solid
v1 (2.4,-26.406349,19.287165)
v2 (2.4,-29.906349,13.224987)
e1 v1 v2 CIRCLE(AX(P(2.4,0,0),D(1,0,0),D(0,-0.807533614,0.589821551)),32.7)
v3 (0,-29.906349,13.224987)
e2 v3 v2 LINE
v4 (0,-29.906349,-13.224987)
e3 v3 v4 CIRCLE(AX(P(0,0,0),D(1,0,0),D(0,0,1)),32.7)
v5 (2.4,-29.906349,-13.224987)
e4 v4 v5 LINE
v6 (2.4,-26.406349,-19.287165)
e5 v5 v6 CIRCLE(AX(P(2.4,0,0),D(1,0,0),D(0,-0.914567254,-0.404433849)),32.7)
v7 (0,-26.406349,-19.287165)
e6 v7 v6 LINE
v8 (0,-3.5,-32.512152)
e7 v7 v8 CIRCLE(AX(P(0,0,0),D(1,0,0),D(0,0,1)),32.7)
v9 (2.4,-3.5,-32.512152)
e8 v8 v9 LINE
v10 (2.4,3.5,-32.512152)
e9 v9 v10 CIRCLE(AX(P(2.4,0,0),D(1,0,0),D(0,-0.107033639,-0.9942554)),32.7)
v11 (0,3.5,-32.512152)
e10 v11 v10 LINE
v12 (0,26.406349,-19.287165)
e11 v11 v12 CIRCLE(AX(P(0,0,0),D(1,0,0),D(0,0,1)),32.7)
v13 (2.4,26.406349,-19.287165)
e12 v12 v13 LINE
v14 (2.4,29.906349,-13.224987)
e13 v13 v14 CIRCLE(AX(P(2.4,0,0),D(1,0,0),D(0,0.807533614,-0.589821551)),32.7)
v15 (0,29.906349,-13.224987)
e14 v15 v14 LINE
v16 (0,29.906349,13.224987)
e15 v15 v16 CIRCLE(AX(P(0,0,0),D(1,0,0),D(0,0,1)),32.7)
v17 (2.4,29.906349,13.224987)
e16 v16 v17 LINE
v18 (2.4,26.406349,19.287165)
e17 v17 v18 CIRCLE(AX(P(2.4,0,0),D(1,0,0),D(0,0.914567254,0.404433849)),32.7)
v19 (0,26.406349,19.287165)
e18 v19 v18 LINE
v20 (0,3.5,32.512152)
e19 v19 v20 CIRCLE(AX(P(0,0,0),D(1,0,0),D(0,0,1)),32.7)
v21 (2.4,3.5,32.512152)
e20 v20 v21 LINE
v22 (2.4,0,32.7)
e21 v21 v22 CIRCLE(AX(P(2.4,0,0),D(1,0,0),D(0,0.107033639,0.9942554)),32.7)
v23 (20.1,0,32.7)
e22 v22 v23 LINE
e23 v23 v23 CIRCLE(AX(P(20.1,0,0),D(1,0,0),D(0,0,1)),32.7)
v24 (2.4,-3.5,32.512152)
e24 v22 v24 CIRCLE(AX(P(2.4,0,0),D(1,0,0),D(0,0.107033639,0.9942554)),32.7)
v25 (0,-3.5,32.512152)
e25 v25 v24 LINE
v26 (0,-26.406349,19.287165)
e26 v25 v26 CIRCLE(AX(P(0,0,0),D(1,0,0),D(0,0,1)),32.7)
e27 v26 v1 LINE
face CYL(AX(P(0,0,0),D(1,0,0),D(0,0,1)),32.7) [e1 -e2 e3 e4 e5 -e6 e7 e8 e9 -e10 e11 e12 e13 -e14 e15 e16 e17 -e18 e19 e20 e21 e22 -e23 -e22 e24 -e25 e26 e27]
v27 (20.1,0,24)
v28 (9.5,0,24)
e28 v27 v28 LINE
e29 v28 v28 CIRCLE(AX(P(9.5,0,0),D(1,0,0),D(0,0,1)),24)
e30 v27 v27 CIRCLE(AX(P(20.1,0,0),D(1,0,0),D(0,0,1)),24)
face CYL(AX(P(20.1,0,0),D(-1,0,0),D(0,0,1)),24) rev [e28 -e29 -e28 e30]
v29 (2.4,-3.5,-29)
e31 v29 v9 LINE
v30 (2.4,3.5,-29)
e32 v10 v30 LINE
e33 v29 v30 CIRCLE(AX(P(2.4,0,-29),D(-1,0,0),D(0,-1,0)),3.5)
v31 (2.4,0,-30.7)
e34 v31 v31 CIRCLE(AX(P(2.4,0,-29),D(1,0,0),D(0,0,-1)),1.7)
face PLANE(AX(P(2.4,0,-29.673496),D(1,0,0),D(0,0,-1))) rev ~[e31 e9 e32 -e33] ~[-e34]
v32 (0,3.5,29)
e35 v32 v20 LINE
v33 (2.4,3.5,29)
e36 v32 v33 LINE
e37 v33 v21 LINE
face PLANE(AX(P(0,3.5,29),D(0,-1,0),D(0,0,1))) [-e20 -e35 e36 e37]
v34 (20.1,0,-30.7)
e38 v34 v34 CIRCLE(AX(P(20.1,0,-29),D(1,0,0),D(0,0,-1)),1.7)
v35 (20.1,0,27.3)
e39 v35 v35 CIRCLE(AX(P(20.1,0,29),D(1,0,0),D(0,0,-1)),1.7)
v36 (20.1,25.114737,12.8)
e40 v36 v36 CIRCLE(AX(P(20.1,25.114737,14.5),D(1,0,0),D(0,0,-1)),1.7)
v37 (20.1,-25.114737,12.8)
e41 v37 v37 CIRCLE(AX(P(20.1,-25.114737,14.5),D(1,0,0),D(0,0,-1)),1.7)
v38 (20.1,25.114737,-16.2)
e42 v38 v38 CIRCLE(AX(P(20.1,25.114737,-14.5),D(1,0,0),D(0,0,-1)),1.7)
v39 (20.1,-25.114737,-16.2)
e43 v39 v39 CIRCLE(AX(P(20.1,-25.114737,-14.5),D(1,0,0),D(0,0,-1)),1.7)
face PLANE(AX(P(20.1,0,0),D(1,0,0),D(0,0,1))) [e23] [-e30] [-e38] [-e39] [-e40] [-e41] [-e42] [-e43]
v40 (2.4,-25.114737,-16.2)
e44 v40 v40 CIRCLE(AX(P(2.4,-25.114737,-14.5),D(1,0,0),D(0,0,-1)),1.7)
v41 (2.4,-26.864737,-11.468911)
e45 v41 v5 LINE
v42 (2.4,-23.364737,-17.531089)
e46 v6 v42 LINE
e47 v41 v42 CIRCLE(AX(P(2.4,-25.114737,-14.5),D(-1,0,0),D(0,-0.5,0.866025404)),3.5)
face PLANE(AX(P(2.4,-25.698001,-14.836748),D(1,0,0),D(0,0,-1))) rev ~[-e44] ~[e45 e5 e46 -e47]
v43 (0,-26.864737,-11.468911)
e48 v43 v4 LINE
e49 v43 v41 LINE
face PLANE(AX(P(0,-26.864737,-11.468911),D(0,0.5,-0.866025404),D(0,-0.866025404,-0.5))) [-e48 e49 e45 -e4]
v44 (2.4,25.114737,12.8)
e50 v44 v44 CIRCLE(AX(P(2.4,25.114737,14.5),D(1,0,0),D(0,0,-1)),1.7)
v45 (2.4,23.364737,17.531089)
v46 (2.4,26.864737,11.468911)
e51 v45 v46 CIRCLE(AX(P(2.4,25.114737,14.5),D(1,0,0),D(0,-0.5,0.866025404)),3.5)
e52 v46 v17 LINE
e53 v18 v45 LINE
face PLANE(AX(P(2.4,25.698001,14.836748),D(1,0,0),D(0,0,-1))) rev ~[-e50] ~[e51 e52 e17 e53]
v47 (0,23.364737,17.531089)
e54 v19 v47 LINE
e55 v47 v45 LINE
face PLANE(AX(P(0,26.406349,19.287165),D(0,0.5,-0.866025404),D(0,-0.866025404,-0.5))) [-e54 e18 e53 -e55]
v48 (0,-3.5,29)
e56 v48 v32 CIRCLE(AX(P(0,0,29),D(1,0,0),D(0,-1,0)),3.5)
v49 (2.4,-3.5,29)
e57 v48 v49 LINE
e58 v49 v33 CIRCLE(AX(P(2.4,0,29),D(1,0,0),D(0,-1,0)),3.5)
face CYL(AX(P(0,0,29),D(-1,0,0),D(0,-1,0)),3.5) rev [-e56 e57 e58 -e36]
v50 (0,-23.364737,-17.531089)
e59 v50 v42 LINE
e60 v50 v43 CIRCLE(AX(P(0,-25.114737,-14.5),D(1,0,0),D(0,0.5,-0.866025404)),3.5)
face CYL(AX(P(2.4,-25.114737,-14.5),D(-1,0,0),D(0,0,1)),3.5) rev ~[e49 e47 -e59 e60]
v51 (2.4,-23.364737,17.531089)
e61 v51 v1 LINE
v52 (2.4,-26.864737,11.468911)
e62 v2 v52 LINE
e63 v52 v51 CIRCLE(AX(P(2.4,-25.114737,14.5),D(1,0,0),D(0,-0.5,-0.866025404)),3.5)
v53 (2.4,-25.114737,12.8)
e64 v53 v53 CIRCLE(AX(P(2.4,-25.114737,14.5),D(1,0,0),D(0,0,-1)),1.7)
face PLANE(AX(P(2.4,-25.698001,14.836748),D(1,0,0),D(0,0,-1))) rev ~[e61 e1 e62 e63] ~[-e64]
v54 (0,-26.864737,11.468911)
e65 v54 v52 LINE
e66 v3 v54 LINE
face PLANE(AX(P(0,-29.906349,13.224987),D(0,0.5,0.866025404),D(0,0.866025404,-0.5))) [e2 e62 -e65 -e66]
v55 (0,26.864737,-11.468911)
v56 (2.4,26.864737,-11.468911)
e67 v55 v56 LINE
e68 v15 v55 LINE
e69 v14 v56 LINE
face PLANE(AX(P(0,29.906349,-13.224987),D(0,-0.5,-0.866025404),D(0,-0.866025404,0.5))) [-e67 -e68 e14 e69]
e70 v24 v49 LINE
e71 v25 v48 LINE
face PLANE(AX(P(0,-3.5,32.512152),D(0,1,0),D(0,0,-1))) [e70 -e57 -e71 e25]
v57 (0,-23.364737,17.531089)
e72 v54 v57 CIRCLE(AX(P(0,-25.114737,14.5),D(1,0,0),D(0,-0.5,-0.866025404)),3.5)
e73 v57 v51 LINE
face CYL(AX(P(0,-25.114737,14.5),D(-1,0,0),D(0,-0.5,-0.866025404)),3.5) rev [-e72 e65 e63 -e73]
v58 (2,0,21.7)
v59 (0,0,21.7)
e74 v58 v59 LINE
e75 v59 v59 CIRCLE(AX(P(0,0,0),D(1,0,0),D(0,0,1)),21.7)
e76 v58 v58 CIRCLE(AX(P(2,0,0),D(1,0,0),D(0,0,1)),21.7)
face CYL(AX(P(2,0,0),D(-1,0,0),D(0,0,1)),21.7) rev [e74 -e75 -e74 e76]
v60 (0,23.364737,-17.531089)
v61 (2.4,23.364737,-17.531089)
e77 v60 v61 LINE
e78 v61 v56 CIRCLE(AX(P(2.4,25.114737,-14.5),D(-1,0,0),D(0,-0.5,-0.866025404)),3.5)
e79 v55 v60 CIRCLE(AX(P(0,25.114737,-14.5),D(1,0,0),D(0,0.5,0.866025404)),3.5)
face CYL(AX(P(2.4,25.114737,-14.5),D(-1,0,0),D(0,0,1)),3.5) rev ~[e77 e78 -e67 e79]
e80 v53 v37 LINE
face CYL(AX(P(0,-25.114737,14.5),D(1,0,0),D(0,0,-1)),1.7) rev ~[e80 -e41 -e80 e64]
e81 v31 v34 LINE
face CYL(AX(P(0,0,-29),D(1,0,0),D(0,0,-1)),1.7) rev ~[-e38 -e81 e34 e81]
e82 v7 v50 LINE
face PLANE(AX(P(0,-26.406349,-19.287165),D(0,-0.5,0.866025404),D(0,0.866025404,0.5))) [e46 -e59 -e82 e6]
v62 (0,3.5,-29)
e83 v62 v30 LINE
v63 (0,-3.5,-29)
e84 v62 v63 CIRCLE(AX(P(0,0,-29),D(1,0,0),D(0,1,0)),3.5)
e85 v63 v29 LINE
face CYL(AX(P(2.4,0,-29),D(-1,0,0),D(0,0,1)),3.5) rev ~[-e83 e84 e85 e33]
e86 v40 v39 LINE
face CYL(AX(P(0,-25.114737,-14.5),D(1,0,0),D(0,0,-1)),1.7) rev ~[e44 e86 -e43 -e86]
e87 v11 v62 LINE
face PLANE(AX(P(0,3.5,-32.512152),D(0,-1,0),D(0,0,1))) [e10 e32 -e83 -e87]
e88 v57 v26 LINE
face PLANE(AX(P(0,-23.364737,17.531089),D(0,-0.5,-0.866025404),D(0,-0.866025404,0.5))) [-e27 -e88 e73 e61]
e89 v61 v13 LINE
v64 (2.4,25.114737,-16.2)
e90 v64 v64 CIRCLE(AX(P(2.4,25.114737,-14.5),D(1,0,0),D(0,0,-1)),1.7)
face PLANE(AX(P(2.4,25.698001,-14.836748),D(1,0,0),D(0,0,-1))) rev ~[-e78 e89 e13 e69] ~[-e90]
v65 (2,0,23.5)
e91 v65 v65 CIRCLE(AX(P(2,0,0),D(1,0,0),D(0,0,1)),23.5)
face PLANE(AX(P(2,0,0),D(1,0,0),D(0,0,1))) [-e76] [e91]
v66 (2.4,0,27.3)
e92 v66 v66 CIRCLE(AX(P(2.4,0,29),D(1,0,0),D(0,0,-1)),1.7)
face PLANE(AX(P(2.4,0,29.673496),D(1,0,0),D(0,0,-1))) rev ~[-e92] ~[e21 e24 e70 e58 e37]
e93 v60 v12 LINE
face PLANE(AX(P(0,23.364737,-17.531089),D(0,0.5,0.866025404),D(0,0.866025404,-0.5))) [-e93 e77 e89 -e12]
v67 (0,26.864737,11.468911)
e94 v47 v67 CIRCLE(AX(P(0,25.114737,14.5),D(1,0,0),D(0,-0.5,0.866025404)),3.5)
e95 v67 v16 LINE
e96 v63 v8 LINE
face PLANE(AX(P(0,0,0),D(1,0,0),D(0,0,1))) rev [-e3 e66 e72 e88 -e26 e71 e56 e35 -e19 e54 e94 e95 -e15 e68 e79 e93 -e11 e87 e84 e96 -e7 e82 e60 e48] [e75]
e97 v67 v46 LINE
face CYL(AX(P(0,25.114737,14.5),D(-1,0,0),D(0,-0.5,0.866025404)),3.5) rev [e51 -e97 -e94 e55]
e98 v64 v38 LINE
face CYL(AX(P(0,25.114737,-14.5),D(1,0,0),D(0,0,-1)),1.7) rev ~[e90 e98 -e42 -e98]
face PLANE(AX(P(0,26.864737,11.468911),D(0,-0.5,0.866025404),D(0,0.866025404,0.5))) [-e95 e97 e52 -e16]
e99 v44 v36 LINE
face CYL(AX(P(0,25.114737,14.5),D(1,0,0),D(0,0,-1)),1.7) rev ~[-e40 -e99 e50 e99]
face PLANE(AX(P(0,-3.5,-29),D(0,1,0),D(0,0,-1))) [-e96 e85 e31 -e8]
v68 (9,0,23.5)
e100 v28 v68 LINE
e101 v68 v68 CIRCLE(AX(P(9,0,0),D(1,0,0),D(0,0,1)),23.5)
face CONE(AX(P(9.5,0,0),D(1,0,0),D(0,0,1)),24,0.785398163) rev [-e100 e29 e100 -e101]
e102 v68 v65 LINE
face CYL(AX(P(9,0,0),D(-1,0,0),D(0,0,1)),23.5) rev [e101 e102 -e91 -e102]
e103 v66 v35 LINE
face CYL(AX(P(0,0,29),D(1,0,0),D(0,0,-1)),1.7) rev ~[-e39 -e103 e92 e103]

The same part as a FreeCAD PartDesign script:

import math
import FreeCAD as App
import Part
import Sketcher
Q = App.Units.Quantity


def add_polygon(sketch, points):
    """Adds a closed chain of lines whose ends are joined by coincident constraints."""
    first, n = sketch.GeometryCount, len(points)
    for a, b in zip(points, points[1:] + points[:1]):
        sketch.addGeometry(Part.LineSegment(App.Vector(*a, 0), App.Vector(*b, 0)), False)
    for i in range(n):
        sketch.addConstraint(Sketcher.Constraint("Coincident", first + i, 2, first + (i + 1) % n, 1))

doc = App.newDocument("Part")
body = doc.addObject("PartDesign::Body", "Body")

# Sketch on XZ plane
sketch1 = doc.addObject("Sketcher::SketchObject", "Sketch")
body.addObject(sketch1)
sketch1.AttachmentSupport = (doc.XZ_Plane, [""])
sketch1.MapMode = "FlatFace"
add_polygon(sketch1, [(20.1, -32.7), (0, -32.7), (0, -21.7), (2, -21.7), (2, -23.5), (9, -23.5), (9.5, -24), (20.1, -24)])  # lines 0-7
sketch1.addConstraint(Sketcher.Constraint("Horizontal", 0))
sketch1.addConstraint(Sketcher.Constraint("Vertical", 1))
sketch1.addConstraint(Sketcher.Constraint("Horizontal", 2))
sketch1.addConstraint(Sketcher.Constraint("Vertical", 3))
sketch1.addConstraint(Sketcher.Constraint("Horizontal", 4))
sketch1.addConstraint(Sketcher.Constraint("Horizontal", 6))
sketch1.addConstraint(Sketcher.Constraint("Vertical", 7))
sketch1.addConstraint(Sketcher.Constraint("PointOnObject", 0, 2, -2))
sketch1.addConstraint(Sketcher.Constraint("DistanceX", 2, 1, 2, 2, Q("2 mm")))
sketch1.addConstraint(Sketcher.Constraint("DistanceX", 4, 1, 4, 2, Q("7 mm")))
sketch1.addConstraint(Sketcher.Constraint("DistanceY", 1, 1, 1, 2, Q("11 mm")))
sketch1.addConstraint(Sketcher.Constraint("Angle", 5, Q("-45 deg")))
sketch1.addConstraint(Sketcher.Constraint("DistanceX", 0, 2, 0, 1, Q("20.1 mm")))
sketch1.addConstraint(Sketcher.Constraint("DistanceX", 6, 1, 6, 2, Q("10.6 mm")))
sketch1.addConstraint(Sketcher.Constraint("DistanceY", 3, 2, 3, 1, Q("1.8 mm")))
sketch1.addConstraint(Sketcher.Constraint("DistanceY", 5, 2, -1, 1, Q("24 mm")))
revolution = doc.addObject("PartDesign::Revolution", "Revolution")
body.addObject(revolution)
revolution.Profile = sketch1
revolution.ReferenceAxis = (sketch1, ["H_Axis"])
revolution.Angle = 360

# Sketch on YZ plane
sketch2 = doc.addObject("Sketcher::SketchObject", "Sketch001")
body.addObject(sketch2)
sketch2.AttachmentSupport = (doc.YZ_Plane, [""])
sketch2.MapMode = "FlatFace"
sketch2.addGeometry(Part.Circle(App.Vector(25.1, 14.5, 0), App.Vector(0, 0, 1), 1.7), False)
sketch2.addGeometry(Part.Circle(App.Vector(0, 29, 0), App.Vector(0, 0, 1), 1.7), False)
sketch2.addGeometry(Part.Circle(App.Vector(-25.1, 14.5, 0), App.Vector(0, 0, 1), 1.7), False)
sketch2.addGeometry(Part.Circle(App.Vector(-25.1, -14.5, 0), App.Vector(0, 0, 1), 1.7), False)
sketch2.addGeometry(Part.Circle(App.Vector(0, -29, 0), App.Vector(0, 0, 1), 1.7), False)
sketch2.addGeometry(Part.Circle(App.Vector(25.1, -14.5, 0), App.Vector(0, 0, 1), 1.7), False)
sketch2.addConstraint(Sketcher.Constraint("Equal", 0, 1))
sketch2.addConstraint(Sketcher.Constraint("Equal", 1, 2))
sketch2.addConstraint(Sketcher.Constraint("Equal", 2, 3))
sketch2.addConstraint(Sketcher.Constraint("Equal", 3, 4))
sketch2.addConstraint(Sketcher.Constraint("Equal", 4, 5))
sketch2.addConstraint(Sketcher.Constraint("Symmetric", 0, 3, 3, 3, -1, 1))
sketch2.addConstraint(Sketcher.Constraint("Symmetric", 1, 3, 4, 3, -1, 1))
sketch2.addConstraint(Sketcher.Constraint("Symmetric", 2, 3, 5, 3, -1, 1))
sketch2.addConstraint(Sketcher.Constraint("Symmetric", 0, 3, 2, 3, -2))
sketch2.addConstraint(Sketcher.Constraint("PointOnObject", 1, 3, -2))
sketch2.addConstraint(Sketcher.Constraint("Diameter", 0, Q("3.4 mm")))
sketch2.addConstraint(Sketcher.Constraint("DistanceY", -1, 1, 1, 3, Q("29 mm")))
sketch2.addConstraint(Sketcher.Constraint("DistanceY", 3, 3, 2, 3, Q("29 mm")))
sketch2.addConstraint(Sketcher.Constraint("DistanceX", -1, 1, 0, 3, Q("25.114737 mm")))
doc.recompute()
hole = doc.addObject("PartDesign::Hole", "Hole")
body.addObject(hole)
hole.Profile = sketch2
hole.ThreadType = "None"
hole.Diameter = 3.4
hole.DepthType = "ThroughAll"
hole.HoleCutType = "Counterbore"
hole.HoleCutDiameter = 7
hole.HoleCutDepth = 2.4
hole.Reversed = True

# Sketch on YZ plane
sketch3 = doc.addObject("Sketcher::SketchObject", "Sketch002")
body.addObject(sketch3)
sketch3.AttachmentSupport = (doc.YZ_Plane, [""])
sketch3.MapMode = "FlatFace"
sketch3.addGeometry(Part.LineSegment(App.Vector(3.5, 32.5, 0), App.Vector(3.5, 29, 0)), False)
sketch3.addGeometry(Part.ArcOfCircle(Part.Circle(App.Vector(0, 29, 0), App.Vector(0, 0, 1), 3.5), math.radians(180), math.radians(360)), False)
sketch3.addGeometry(Part.LineSegment(App.Vector(-3.5, 29, 0), App.Vector(-3.5, 32.5, 0)), False)
sketch3.addGeometry(Part.ArcOfCircle(Part.Circle(App.Vector(0, 0, 0), App.Vector(0, 0, 1), 32.7), math.radians(83.86), math.radians(96.14)), False)
sketch3.addGeometry(Part.LineSegment(App.Vector(-26.4, 19.3, 0), App.Vector(-23.4, 17.5, 0)), False)
sketch3.addGeometry(Part.ArcOfCircle(Part.Circle(App.Vector(-25.1, 14.5, 0), App.Vector(0, 0, 1), 3.5), math.radians(-120), math.radians(60)), False)
sketch3.addGeometry(Part.LineSegment(App.Vector(-26.9, 11.5, 0), App.Vector(-29.9, 13.2, 0)), False)
sketch3.addGeometry(Part.ArcOfCircle(Part.Circle(App.Vector(0, 0, 0), App.Vector(0, 0, 1), 32.7), math.radians(143.86), math.radians(156.14)), False)
sketch3.addGeometry(Part.LineSegment(App.Vector(-29.9, -13.2, 0), App.Vector(-26.9, -11.5, 0)), False)
sketch3.addGeometry(Part.ArcOfCircle(Part.Circle(App.Vector(-25.1, -14.5, 0), App.Vector(0, 0, 1), 3.5), math.radians(-60), math.radians(120)), False)
sketch3.addGeometry(Part.LineSegment(App.Vector(-23.4, -17.5, 0), App.Vector(-26.4, -19.3, 0)), False)
sketch3.addGeometry(Part.ArcOfCircle(Part.Circle(App.Vector(0, 0, 0), App.Vector(0, 0, 1), 32.7), math.radians(-156.14), math.radians(-143.86)), False)
sketch3.addGeometry(Part.LineSegment(App.Vector(-3.5, -32.5, 0), App.Vector(-3.5, -29, 0)), False)
sketch3.addGeometry(Part.ArcOfCircle(Part.Circle(App.Vector(0, -29, 0), App.Vector(0, 0, 1), 3.5), math.radians(0), math.radians(180)), False)
sketch3.addGeometry(Part.LineSegment(App.Vector(3.5, -29, 0), App.Vector(3.5, -32.5, 0)), False)
sketch3.addGeometry(Part.ArcOfCircle(Part.Circle(App.Vector(0, 0, 0), App.Vector(0, 0, 1), 32.7), math.radians(-96.14), math.radians(-83.86)), False)
sketch3.addGeometry(Part.LineSegment(App.Vector(26.4, -19.3, 0), App.Vector(23.4, -17.5, 0)), False)
sketch3.addGeometry(Part.ArcOfCircle(Part.Circle(App.Vector(25.1, -14.5, 0), App.Vector(0, 0, 1), 3.5), math.radians(60), math.radians(240)), False)
sketch3.addGeometry(Part.LineSegment(App.Vector(26.9, -11.5, 0), App.Vector(29.9, -13.2, 0)), False)
sketch3.addGeometry(Part.ArcOfCircle(Part.Circle(App.Vector(0, 0, 0), App.Vector(0, 0, 1), 32.7), math.radians(-36.14), math.radians(-23.86)), False)
sketch3.addGeometry(Part.LineSegment(App.Vector(29.9, 13.2, 0), App.Vector(26.9, 11.5, 0)), False)
sketch3.addGeometry(Part.ArcOfCircle(Part.Circle(App.Vector(25.1, 14.5, 0), App.Vector(0, 0, 1), 3.5), math.radians(120), math.radians(300)), False)
sketch3.addGeometry(Part.LineSegment(App.Vector(23.4, 17.5, 0), App.Vector(26.4, 19.3, 0)), False)
sketch3.addGeometry(Part.ArcOfCircle(Part.Circle(App.Vector(0, 0, 0), App.Vector(0, 0, 1), 32.7), math.radians(23.86), math.radians(36.14)), False)
sketch3.addConstraint(Sketcher.Constraint("Tangent", 0, 2, 1, 2))
sketch3.addConstraint(Sketcher.Constraint("Tangent", 1, 1, 2, 1))
sketch3.addConstraint(Sketcher.Constraint("Coincident", 2, 2, 3, 2))
sketch3.addConstraint(Sketcher.Constraint("Coincident", 3, 1, 0, 1))
sketch3.addConstraint(Sketcher.Constraint("Tangent", 4, 2, 5, 2))
sketch3.addConstraint(Sketcher.Constraint("Tangent", 5, 1, 6, 1))
sketch3.addConstraint(Sketcher.Constraint("Coincident", 6, 2, 7, 2))
sketch3.addConstraint(Sketcher.Constraint("Coincident", 7, 1, 4, 1))
sketch3.addConstraint(Sketcher.Constraint("Tangent", 8, 2, 9, 2))
sketch3.addConstraint(Sketcher.Constraint("Tangent", 9, 1, 10, 1))
sketch3.addConstraint(Sketcher.Constraint("Coincident", 10, 2, 11, 2))
sketch3.addConstraint(Sketcher.Constraint("Coincident", 11, 1, 8, 1))
sketch3.addConstraint(Sketcher.Constraint("Tangent", 12, 2, 13, 2))
sketch3.addConstraint(Sketcher.Constraint("Tangent", 13, 1, 14, 1))
sketch3.addConstraint(Sketcher.Constraint("Coincident", 14, 2, 15, 2))
sketch3.addConstraint(Sketcher.Constraint("Coincident", 15, 1, 12, 1))
sketch3.addConstraint(Sketcher.Constraint("Tangent", 16, 2, 17, 2))
sketch3.addConstraint(Sketcher.Constraint("Tangent", 17, 1, 18, 1))
sketch3.addConstraint(Sketcher.Constraint("Coincident", 18, 2, 19, 2))
sketch3.addConstraint(Sketcher.Constraint("Coincident", 19, 1, 16, 1))
sketch3.addConstraint(Sketcher.Constraint("Tangent", 20, 2, 21, 2))
sketch3.addConstraint(Sketcher.Constraint("Tangent", 21, 1, 22, 1))
sketch3.addConstraint(Sketcher.Constraint("Coincident", 22, 2, 23, 2))
sketch3.addConstraint(Sketcher.Constraint("Coincident", 23, 1, 20, 1))
sketch3.addConstraint(Sketcher.Constraint("Vertical", 0))
sketch3.addConstraint(Sketcher.Constraint("Vertical", 2))
sketch3.addConstraint(Sketcher.Constraint("Vertical", 12))
sketch3.addConstraint(Sketcher.Constraint("Vertical", 14))
sketch3.addConstraint(Sketcher.Constraint("Coincident", 3, 3, -1, 1))
sketch3.addConstraint(Sketcher.Constraint("Coincident", 7, 3, -1, 1))
sketch3.addConstraint(Sketcher.Constraint("Coincident", 11, 3, -1, 1))
sketch3.addConstraint(Sketcher.Constraint("Coincident", 15, 3, -1, 1))
sketch3.addConstraint(Sketcher.Constraint("Coincident", 19, 3, -1, 1))
sketch3.addConstraint(Sketcher.Constraint("Coincident", 23, 3, -1, 1))
sketch3.addConstraint(Sketcher.Constraint("Equal", 1, 5))
sketch3.addConstraint(Sketcher.Constraint("Equal", 3, 7))
sketch3.addConstraint(Sketcher.Constraint("Equal", 5, 9))
sketch3.addConstraint(Sketcher.Constraint("Equal", 7, 11))
sketch3.addConstraint(Sketcher.Constraint("Equal", 9, 13))
sketch3.addConstraint(Sketcher.Constraint("Equal", 11, 15))
sketch3.addConstraint(Sketcher.Constraint("Equal", 13, 17))
sketch3.addConstraint(Sketcher.Constraint("Equal", 15, 19))
sketch3.addConstraint(Sketcher.Constraint("Equal", 17, 21))
sketch3.addConstraint(Sketcher.Constraint("Equal", 19, 23))
sketch3.addConstraint(Sketcher.Constraint("Symmetric", 1, 3, 13, 3, -1, 1))
sketch3.addConstraint(Sketcher.Constraint("Symmetric", 5, 3, 17, 3, -1, 1))
sketch3.addConstraint(Sketcher.Constraint("Symmetric", 9, 3, 21, 3, -1, 1))
sketch3.addConstraint(Sketcher.Constraint("Symmetric", 9, 3, 17, 3, -2))
sketch3.addConstraint(Sketcher.Constraint("PointOnObject", 1, 3, -2))
sketch3.addConstraint(Sketcher.Constraint("Parallel", 4, 6))
sketch3.addConstraint(Sketcher.Constraint("Parallel", 8, 10))
sketch3.addConstraint(Sketcher.Constraint("Parallel", 6, 16))
sketch3.addConstraint(Sketcher.Constraint("Parallel", 16, 18))
sketch3.addConstraint(Sketcher.Constraint("Parallel", 10, 20))
sketch3.addConstraint(Sketcher.Constraint("Parallel", 20, 22))
sketch3.addConstraint(Sketcher.Constraint("Horizontal", 9, 1, 16, 2))
sketch3.addConstraint(Sketcher.Constraint("Equal", 4, 6))
sketch3.addConstraint(Sketcher.Constraint("Radius", 1, Q("3.5 mm")))
sketch3.addConstraint(Sketcher.Constraint("Radius", 3, Q("32.7 mm")))
sketch3.addConstraint(Sketcher.Constraint("Angle", 4, Q("-30 deg")))
sketch3.addConstraint(Sketcher.Constraint("DistanceY", -1, 1, 1, 3, Q("29 mm")))
sketch3.addConstraint(Sketcher.Constraint("DistanceY", 9, 3, 5, 3, Q("29 mm")))
pocket1 = doc.addObject("PartDesign::Pocket", "Pocket")
body.addObject(pocket1)
pocket1.Profile = sketch3
pocket1.Length = 2.4
pocket1.Reversed = True

doc.recompute()
